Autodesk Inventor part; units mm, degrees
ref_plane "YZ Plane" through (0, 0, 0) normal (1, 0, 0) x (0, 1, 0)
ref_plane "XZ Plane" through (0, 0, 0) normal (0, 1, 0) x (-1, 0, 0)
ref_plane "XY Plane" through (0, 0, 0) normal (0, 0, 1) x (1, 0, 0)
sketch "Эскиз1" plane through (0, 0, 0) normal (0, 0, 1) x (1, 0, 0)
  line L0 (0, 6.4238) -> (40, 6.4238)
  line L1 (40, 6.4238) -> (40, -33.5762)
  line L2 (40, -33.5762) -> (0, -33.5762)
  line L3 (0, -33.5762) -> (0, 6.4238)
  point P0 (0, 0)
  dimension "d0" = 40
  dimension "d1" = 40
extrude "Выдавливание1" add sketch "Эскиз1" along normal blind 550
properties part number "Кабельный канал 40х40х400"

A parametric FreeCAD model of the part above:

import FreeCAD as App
import Part
import Sketcher

V = App.Vector


def add_polygon(sketch, points):
    """Adds a closed chain of lines whose ends are joined by coincident constraints."""
    first, n = sketch.GeometryCount, len(points)
    for a, b in zip(points, points[1:] + points[:1]):
        sketch.addGeometry(Part.LineSegment(App.Vector(*a, 0), App.Vector(*b, 0)), False)
    for i in range(n):
        sketch.addConstraint(Sketcher.Constraint("Coincident", first + i, 2, first + (i + 1) % n, 1))

doc = App.newDocument("Part")
body = doc.addObject("PartDesign::Body", "Body")

# Sketch on XY plane
sketch1 = doc.addObject("Sketcher::SketchObject", "Sketch")
body.addObject(sketch1)
sketch1.AttachmentSupport = (doc.XY_Plane, [""])
sketch1.MapMode = "FlatFace"
add_polygon(sketch1, [(40, 6), (0, 6), (0, -34), (40, -34)])  # lines 0-3
sketch1.addConstraint(Sketcher.Constraint("Horizontal", 0))
sketch1.addConstraint(Sketcher.Constraint("Vertical", 1))
sketch1.addConstraint(Sketcher.Constraint("Horizontal", 2))
sketch1.addConstraint(Sketcher.Constraint("Vertical", 3))
sketch1.addConstraint(Sketcher.Constraint("PointOnObject", 0, 2, -2))
sketch1.addConstraint(Sketcher.Constraint("Equal", 2, 1))
sketch1.addConstraint(Sketcher.Constraint("DistanceX", 0, 2, 0, 1, 40.0))
sketch1.addConstraint(Sketcher.Constraint("DistanceY", -1, 1, 0, 2, 6.4238))
pad1 = doc.addObject("PartDesign::Pad", "Pad")
body.addObject(pad1)
pad1.Profile = sketch1
pad1.Length = 550

doc.recompute()
